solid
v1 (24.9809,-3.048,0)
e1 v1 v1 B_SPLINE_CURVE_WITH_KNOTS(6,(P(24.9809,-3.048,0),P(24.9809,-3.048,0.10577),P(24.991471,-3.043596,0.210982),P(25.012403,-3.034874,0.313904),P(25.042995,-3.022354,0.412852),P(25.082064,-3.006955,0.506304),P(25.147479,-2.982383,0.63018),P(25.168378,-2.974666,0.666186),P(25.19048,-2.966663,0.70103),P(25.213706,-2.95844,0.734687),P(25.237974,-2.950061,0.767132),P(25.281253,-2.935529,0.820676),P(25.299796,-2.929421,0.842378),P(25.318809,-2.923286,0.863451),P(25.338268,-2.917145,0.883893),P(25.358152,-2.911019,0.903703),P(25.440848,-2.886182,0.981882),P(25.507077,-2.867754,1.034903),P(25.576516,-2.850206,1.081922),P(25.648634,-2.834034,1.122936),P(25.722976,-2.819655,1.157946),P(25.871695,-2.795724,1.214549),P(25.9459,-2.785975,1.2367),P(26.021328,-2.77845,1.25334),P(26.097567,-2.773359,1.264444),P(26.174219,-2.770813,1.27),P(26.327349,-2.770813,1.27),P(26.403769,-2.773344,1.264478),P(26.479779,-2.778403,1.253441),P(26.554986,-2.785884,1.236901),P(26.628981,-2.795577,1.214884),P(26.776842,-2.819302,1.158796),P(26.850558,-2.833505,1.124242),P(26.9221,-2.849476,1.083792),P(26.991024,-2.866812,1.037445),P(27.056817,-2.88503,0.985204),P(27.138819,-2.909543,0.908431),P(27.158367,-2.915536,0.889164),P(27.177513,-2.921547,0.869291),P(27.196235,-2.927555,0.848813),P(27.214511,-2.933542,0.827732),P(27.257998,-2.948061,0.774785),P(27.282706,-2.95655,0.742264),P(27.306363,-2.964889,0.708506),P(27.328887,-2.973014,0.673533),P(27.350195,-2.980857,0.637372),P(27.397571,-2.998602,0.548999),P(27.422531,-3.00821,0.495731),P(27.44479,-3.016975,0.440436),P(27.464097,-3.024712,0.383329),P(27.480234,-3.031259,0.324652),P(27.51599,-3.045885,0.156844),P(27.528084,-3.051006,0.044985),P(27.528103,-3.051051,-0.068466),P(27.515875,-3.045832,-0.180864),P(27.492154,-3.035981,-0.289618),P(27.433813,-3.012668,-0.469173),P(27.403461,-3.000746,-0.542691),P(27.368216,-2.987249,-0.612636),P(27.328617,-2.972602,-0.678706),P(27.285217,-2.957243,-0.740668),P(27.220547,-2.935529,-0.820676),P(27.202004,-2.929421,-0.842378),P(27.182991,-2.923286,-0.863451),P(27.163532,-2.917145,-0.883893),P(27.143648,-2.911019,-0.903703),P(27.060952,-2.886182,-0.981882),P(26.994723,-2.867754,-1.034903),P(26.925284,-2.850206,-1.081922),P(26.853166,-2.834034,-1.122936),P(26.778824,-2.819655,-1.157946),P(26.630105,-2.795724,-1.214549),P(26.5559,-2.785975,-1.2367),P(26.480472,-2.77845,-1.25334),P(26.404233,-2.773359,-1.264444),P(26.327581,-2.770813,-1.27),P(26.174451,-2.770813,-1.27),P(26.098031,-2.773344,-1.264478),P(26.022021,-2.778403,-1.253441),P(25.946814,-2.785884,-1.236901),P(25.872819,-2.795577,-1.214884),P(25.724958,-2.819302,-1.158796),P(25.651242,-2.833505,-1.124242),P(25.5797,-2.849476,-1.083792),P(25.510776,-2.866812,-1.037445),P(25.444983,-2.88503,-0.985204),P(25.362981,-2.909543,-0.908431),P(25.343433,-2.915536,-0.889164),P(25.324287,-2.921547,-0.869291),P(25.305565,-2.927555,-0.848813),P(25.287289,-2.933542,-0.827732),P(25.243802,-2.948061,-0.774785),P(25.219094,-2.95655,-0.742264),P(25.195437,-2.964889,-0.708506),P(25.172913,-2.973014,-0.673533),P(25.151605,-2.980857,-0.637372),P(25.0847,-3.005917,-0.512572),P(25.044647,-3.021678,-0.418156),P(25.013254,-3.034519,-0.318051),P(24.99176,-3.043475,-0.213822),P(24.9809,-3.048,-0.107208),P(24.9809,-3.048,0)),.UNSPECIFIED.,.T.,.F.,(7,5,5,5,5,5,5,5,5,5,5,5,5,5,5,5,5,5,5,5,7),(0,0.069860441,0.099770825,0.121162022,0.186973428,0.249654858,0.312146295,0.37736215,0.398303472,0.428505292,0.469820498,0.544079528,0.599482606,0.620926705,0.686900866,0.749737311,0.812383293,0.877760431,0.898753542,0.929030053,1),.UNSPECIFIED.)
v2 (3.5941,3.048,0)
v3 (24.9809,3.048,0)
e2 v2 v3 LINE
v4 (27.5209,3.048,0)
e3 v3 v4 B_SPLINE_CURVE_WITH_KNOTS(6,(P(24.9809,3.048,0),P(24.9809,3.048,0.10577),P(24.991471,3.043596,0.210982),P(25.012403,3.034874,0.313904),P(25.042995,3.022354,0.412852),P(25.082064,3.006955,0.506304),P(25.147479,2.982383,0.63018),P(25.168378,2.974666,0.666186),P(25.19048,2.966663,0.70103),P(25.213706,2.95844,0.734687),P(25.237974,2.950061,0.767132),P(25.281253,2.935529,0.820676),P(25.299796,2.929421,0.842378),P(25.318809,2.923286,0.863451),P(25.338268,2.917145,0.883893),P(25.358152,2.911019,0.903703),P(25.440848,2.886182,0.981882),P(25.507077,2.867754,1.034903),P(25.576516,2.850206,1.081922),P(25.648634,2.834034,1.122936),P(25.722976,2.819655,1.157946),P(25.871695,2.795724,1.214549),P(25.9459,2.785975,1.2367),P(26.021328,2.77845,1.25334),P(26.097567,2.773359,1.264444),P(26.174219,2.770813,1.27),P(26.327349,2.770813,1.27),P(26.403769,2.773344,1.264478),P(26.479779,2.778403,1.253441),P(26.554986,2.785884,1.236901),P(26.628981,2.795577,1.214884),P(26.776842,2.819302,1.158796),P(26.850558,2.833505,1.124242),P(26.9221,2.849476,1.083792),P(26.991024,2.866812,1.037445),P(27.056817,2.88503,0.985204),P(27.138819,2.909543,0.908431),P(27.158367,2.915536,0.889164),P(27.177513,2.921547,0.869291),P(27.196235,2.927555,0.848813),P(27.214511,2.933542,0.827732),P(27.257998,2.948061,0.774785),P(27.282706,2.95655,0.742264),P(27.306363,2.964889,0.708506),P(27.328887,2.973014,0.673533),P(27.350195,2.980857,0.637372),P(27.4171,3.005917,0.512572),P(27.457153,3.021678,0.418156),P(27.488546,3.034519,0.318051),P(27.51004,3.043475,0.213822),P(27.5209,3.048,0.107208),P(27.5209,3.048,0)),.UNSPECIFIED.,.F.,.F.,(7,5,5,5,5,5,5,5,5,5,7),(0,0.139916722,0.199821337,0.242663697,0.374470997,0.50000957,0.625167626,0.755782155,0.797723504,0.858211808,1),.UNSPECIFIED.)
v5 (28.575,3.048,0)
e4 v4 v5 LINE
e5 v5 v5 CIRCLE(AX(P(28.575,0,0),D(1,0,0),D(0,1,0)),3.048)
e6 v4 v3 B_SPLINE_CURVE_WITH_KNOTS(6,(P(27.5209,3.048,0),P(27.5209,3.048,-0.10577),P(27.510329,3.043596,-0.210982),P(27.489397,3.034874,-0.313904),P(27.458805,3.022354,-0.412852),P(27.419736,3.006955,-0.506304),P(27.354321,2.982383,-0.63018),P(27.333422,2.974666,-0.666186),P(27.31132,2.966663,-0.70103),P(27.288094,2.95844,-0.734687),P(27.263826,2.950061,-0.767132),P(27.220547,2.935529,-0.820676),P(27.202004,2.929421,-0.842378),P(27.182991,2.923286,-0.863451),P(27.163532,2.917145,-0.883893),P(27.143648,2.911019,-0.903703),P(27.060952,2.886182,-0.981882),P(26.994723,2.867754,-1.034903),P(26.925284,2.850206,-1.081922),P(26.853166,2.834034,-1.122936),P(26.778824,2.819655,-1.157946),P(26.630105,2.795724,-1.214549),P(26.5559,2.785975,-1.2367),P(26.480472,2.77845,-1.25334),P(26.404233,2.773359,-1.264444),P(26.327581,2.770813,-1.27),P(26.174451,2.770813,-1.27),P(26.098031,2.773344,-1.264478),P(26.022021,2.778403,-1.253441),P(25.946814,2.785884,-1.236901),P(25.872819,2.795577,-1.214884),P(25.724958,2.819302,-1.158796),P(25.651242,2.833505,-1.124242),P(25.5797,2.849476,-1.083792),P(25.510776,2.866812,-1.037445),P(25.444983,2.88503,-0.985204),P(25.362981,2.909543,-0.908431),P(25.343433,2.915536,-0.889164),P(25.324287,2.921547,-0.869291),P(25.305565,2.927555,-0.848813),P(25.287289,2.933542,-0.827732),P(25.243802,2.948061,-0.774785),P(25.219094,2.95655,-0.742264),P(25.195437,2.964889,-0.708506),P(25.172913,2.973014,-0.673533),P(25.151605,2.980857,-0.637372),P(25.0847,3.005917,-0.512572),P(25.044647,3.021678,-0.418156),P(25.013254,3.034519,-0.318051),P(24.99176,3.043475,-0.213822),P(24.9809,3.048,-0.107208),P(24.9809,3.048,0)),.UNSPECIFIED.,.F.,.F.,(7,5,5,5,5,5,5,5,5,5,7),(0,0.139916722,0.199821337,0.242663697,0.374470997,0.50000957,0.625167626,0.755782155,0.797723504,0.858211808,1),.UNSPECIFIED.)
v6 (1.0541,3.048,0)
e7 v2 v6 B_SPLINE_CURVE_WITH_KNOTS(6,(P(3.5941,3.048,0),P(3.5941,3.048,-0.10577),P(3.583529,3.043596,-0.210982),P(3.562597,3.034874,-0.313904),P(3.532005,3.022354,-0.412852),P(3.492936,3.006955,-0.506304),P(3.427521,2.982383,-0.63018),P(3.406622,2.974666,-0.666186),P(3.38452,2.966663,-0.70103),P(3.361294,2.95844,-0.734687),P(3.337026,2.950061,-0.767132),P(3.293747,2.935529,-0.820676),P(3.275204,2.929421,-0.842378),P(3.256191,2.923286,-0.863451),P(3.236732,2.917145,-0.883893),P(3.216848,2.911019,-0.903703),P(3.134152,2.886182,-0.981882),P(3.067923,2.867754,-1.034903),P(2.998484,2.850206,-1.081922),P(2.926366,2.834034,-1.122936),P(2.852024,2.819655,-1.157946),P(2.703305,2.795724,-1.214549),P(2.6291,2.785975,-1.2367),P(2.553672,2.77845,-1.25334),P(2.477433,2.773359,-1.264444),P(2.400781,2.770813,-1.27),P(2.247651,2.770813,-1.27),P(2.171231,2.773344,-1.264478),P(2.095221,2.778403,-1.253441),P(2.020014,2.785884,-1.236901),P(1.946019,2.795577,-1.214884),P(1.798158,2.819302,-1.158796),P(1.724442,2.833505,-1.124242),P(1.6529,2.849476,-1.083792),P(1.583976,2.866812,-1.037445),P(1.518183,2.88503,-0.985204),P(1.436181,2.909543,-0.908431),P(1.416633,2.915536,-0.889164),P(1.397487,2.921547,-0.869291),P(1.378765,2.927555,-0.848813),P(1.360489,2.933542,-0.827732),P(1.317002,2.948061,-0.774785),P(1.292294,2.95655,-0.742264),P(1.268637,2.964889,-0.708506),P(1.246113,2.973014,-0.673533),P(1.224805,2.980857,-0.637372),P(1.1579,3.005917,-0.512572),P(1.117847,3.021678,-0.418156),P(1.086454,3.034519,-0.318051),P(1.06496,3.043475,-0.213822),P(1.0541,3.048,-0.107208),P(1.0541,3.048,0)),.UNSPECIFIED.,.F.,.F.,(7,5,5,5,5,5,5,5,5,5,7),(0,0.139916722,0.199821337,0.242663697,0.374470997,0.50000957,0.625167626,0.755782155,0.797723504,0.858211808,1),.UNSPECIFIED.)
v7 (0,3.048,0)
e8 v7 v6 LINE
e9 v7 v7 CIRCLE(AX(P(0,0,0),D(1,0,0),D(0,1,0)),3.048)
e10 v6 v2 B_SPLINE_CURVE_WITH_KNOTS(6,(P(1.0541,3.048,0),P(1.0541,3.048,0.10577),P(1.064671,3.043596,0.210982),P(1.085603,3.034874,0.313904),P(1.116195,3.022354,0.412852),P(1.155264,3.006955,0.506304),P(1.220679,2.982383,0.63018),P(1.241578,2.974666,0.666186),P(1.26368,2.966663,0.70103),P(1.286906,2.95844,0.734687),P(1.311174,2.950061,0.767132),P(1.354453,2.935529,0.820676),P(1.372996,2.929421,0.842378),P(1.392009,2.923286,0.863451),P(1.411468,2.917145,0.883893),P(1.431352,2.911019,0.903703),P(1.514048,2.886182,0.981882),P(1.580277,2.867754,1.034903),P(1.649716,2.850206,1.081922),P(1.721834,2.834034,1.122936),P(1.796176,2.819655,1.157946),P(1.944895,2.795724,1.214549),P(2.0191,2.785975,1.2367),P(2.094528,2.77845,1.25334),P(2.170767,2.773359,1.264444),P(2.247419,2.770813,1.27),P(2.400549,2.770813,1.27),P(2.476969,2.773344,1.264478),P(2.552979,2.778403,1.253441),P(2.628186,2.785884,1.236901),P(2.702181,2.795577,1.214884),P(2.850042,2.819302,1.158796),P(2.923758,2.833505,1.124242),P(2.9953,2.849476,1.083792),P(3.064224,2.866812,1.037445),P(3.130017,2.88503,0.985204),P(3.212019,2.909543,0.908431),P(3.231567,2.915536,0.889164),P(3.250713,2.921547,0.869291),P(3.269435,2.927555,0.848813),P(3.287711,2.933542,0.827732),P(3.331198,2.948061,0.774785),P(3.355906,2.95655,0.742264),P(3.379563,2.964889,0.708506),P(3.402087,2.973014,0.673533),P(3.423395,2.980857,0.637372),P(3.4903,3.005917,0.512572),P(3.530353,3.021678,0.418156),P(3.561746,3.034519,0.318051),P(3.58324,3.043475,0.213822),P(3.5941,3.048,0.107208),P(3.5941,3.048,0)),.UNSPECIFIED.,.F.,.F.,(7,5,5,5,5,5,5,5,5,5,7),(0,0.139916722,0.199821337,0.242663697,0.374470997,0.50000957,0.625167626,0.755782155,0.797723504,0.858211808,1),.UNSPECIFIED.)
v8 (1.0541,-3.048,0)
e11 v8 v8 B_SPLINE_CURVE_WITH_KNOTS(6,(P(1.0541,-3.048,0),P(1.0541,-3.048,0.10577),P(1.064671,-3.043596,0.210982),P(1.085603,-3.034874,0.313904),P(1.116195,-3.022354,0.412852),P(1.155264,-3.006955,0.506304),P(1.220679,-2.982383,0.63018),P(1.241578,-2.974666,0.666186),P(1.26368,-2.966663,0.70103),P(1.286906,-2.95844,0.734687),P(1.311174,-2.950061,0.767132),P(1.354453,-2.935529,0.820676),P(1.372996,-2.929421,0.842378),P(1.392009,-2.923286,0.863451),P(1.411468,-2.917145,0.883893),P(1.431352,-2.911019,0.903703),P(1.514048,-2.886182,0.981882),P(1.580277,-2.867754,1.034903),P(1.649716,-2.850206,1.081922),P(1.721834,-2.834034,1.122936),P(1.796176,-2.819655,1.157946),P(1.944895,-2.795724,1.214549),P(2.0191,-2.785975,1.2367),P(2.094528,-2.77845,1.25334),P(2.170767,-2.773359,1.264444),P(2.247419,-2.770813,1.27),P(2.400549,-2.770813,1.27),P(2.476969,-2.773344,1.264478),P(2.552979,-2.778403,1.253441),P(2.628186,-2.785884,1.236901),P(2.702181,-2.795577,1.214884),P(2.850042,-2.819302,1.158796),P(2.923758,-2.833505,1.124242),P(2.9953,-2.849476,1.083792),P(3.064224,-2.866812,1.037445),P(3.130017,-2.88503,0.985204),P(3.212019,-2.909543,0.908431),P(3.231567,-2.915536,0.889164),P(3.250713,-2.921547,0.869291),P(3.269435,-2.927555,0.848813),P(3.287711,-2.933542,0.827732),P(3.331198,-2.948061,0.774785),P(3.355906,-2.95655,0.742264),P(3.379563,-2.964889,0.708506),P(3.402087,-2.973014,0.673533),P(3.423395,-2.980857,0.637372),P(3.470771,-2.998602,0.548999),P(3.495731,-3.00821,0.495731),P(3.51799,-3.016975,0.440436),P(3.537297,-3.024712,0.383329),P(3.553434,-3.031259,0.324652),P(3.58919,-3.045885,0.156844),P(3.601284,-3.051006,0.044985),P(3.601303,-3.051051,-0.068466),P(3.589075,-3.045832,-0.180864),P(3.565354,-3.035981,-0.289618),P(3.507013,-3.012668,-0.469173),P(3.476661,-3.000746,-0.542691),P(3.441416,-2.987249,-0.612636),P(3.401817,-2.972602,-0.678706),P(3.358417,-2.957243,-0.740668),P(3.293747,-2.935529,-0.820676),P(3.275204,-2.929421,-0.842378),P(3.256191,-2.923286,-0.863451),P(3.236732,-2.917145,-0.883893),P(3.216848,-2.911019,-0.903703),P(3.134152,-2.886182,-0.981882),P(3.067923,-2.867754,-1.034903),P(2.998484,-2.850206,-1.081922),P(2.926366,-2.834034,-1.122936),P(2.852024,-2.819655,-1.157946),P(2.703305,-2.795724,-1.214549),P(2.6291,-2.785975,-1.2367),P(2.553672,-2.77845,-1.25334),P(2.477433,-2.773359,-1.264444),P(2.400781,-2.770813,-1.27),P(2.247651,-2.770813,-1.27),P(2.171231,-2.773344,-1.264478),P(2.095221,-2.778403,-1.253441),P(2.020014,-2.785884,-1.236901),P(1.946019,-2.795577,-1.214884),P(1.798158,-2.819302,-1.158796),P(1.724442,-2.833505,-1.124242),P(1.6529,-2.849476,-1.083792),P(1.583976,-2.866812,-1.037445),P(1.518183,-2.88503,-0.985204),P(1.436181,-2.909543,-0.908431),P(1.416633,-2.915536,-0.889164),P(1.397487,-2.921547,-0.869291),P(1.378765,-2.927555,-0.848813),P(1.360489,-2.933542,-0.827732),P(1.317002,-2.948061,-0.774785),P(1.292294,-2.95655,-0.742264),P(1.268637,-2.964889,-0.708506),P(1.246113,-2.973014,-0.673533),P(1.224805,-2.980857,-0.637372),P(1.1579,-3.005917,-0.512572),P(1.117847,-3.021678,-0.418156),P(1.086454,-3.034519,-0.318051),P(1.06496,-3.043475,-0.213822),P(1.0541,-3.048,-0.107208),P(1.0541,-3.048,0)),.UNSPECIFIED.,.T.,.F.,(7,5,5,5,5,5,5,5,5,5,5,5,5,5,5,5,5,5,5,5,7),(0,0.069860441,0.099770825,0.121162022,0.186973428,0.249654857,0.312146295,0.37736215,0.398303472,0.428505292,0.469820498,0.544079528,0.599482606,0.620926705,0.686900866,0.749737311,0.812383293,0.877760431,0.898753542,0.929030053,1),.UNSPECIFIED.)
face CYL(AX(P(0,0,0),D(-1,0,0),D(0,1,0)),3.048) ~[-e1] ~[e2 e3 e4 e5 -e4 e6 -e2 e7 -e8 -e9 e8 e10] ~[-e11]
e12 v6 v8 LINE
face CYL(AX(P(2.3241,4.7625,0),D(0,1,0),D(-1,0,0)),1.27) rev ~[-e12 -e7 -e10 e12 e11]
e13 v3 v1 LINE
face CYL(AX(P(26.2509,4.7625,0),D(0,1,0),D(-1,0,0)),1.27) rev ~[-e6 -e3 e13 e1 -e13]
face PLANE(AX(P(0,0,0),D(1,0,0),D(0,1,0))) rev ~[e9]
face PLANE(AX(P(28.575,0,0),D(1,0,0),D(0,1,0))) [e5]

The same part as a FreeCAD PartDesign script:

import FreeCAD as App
import Part
import Sketcher

V = App.Vector
Q = App.Units.Quantity

doc = App.newDocument("Part")
body = doc.addObject("PartDesign::Body", "Body")

# Sketch on YZ plane
sketch1 = body.newObject("Sketcher::SketchObject", "Sketch")
sketch1.AttachmentSupport = (doc.getObject("YZ_Plane"), [""])
sketch1.MapMode = "FlatFace"
sketch1.addGeometry(Part.Circle(V(0, 0, 0), V(0, 0, 1), 3), False)
sketch1.addConstraint(Sketcher.Constraint("Coincident", 0, 3, -1, 1))
sketch1.addConstraint(Sketcher.Constraint("Diameter", 0, Q("0.24 in")))
pad1 = body.newObject("PartDesign::Pad", "Pad")
pad1.Profile = sketch1
pad1.Length = Q("1.125 in")

# Sketch on XZ plane
sketch2 = body.newObject("Sketcher::SketchObject", "Sketch001")
sketch2.AttachmentSupport = (doc.getObject("XZ_Plane"), [""])
sketch2.MapMode = "FlatFace"
sketch2.AttachmentOffset = App.Placement(V(0, 0, -0.1875 * 25.4), App.Rotation())
sketch2.addGeometry(Part.Circle(V(2.3, 0, 0), V(0, 0, 1), 1.3), False)
sketch2.addGeometry(Part.Circle(V(26.3, 0, 0), V(0, 0, 1), 1.3), False)
sketch2.addConstraint(Sketcher.Constraint("Equal", 0, 1))
sketch2.addConstraint(Sketcher.Constraint("PointOnObject", 0, 3, -1))
sketch2.addConstraint(Sketcher.Constraint("PointOnObject", 1, 3, -1))
sketch2.addConstraint(Sketcher.Constraint("Diameter", 0, Q("0.1 in")))
sketch2.addConstraint(Sketcher.Constraint("DistanceX", 0, 3, 1, 3, Q("0.942 in")))
sketch2.addConstraint(Sketcher.Constraint("DistanceX", -1, 1, 0, 3, Q("0.0915 in")))
pocket1 = body.newObject("PartDesign::Pocket", "Pocket")
pocket1.Profile = sketch2
pocket1.Length = Q("1 in")
pocket1.Reversed = True

doc.recompute()
